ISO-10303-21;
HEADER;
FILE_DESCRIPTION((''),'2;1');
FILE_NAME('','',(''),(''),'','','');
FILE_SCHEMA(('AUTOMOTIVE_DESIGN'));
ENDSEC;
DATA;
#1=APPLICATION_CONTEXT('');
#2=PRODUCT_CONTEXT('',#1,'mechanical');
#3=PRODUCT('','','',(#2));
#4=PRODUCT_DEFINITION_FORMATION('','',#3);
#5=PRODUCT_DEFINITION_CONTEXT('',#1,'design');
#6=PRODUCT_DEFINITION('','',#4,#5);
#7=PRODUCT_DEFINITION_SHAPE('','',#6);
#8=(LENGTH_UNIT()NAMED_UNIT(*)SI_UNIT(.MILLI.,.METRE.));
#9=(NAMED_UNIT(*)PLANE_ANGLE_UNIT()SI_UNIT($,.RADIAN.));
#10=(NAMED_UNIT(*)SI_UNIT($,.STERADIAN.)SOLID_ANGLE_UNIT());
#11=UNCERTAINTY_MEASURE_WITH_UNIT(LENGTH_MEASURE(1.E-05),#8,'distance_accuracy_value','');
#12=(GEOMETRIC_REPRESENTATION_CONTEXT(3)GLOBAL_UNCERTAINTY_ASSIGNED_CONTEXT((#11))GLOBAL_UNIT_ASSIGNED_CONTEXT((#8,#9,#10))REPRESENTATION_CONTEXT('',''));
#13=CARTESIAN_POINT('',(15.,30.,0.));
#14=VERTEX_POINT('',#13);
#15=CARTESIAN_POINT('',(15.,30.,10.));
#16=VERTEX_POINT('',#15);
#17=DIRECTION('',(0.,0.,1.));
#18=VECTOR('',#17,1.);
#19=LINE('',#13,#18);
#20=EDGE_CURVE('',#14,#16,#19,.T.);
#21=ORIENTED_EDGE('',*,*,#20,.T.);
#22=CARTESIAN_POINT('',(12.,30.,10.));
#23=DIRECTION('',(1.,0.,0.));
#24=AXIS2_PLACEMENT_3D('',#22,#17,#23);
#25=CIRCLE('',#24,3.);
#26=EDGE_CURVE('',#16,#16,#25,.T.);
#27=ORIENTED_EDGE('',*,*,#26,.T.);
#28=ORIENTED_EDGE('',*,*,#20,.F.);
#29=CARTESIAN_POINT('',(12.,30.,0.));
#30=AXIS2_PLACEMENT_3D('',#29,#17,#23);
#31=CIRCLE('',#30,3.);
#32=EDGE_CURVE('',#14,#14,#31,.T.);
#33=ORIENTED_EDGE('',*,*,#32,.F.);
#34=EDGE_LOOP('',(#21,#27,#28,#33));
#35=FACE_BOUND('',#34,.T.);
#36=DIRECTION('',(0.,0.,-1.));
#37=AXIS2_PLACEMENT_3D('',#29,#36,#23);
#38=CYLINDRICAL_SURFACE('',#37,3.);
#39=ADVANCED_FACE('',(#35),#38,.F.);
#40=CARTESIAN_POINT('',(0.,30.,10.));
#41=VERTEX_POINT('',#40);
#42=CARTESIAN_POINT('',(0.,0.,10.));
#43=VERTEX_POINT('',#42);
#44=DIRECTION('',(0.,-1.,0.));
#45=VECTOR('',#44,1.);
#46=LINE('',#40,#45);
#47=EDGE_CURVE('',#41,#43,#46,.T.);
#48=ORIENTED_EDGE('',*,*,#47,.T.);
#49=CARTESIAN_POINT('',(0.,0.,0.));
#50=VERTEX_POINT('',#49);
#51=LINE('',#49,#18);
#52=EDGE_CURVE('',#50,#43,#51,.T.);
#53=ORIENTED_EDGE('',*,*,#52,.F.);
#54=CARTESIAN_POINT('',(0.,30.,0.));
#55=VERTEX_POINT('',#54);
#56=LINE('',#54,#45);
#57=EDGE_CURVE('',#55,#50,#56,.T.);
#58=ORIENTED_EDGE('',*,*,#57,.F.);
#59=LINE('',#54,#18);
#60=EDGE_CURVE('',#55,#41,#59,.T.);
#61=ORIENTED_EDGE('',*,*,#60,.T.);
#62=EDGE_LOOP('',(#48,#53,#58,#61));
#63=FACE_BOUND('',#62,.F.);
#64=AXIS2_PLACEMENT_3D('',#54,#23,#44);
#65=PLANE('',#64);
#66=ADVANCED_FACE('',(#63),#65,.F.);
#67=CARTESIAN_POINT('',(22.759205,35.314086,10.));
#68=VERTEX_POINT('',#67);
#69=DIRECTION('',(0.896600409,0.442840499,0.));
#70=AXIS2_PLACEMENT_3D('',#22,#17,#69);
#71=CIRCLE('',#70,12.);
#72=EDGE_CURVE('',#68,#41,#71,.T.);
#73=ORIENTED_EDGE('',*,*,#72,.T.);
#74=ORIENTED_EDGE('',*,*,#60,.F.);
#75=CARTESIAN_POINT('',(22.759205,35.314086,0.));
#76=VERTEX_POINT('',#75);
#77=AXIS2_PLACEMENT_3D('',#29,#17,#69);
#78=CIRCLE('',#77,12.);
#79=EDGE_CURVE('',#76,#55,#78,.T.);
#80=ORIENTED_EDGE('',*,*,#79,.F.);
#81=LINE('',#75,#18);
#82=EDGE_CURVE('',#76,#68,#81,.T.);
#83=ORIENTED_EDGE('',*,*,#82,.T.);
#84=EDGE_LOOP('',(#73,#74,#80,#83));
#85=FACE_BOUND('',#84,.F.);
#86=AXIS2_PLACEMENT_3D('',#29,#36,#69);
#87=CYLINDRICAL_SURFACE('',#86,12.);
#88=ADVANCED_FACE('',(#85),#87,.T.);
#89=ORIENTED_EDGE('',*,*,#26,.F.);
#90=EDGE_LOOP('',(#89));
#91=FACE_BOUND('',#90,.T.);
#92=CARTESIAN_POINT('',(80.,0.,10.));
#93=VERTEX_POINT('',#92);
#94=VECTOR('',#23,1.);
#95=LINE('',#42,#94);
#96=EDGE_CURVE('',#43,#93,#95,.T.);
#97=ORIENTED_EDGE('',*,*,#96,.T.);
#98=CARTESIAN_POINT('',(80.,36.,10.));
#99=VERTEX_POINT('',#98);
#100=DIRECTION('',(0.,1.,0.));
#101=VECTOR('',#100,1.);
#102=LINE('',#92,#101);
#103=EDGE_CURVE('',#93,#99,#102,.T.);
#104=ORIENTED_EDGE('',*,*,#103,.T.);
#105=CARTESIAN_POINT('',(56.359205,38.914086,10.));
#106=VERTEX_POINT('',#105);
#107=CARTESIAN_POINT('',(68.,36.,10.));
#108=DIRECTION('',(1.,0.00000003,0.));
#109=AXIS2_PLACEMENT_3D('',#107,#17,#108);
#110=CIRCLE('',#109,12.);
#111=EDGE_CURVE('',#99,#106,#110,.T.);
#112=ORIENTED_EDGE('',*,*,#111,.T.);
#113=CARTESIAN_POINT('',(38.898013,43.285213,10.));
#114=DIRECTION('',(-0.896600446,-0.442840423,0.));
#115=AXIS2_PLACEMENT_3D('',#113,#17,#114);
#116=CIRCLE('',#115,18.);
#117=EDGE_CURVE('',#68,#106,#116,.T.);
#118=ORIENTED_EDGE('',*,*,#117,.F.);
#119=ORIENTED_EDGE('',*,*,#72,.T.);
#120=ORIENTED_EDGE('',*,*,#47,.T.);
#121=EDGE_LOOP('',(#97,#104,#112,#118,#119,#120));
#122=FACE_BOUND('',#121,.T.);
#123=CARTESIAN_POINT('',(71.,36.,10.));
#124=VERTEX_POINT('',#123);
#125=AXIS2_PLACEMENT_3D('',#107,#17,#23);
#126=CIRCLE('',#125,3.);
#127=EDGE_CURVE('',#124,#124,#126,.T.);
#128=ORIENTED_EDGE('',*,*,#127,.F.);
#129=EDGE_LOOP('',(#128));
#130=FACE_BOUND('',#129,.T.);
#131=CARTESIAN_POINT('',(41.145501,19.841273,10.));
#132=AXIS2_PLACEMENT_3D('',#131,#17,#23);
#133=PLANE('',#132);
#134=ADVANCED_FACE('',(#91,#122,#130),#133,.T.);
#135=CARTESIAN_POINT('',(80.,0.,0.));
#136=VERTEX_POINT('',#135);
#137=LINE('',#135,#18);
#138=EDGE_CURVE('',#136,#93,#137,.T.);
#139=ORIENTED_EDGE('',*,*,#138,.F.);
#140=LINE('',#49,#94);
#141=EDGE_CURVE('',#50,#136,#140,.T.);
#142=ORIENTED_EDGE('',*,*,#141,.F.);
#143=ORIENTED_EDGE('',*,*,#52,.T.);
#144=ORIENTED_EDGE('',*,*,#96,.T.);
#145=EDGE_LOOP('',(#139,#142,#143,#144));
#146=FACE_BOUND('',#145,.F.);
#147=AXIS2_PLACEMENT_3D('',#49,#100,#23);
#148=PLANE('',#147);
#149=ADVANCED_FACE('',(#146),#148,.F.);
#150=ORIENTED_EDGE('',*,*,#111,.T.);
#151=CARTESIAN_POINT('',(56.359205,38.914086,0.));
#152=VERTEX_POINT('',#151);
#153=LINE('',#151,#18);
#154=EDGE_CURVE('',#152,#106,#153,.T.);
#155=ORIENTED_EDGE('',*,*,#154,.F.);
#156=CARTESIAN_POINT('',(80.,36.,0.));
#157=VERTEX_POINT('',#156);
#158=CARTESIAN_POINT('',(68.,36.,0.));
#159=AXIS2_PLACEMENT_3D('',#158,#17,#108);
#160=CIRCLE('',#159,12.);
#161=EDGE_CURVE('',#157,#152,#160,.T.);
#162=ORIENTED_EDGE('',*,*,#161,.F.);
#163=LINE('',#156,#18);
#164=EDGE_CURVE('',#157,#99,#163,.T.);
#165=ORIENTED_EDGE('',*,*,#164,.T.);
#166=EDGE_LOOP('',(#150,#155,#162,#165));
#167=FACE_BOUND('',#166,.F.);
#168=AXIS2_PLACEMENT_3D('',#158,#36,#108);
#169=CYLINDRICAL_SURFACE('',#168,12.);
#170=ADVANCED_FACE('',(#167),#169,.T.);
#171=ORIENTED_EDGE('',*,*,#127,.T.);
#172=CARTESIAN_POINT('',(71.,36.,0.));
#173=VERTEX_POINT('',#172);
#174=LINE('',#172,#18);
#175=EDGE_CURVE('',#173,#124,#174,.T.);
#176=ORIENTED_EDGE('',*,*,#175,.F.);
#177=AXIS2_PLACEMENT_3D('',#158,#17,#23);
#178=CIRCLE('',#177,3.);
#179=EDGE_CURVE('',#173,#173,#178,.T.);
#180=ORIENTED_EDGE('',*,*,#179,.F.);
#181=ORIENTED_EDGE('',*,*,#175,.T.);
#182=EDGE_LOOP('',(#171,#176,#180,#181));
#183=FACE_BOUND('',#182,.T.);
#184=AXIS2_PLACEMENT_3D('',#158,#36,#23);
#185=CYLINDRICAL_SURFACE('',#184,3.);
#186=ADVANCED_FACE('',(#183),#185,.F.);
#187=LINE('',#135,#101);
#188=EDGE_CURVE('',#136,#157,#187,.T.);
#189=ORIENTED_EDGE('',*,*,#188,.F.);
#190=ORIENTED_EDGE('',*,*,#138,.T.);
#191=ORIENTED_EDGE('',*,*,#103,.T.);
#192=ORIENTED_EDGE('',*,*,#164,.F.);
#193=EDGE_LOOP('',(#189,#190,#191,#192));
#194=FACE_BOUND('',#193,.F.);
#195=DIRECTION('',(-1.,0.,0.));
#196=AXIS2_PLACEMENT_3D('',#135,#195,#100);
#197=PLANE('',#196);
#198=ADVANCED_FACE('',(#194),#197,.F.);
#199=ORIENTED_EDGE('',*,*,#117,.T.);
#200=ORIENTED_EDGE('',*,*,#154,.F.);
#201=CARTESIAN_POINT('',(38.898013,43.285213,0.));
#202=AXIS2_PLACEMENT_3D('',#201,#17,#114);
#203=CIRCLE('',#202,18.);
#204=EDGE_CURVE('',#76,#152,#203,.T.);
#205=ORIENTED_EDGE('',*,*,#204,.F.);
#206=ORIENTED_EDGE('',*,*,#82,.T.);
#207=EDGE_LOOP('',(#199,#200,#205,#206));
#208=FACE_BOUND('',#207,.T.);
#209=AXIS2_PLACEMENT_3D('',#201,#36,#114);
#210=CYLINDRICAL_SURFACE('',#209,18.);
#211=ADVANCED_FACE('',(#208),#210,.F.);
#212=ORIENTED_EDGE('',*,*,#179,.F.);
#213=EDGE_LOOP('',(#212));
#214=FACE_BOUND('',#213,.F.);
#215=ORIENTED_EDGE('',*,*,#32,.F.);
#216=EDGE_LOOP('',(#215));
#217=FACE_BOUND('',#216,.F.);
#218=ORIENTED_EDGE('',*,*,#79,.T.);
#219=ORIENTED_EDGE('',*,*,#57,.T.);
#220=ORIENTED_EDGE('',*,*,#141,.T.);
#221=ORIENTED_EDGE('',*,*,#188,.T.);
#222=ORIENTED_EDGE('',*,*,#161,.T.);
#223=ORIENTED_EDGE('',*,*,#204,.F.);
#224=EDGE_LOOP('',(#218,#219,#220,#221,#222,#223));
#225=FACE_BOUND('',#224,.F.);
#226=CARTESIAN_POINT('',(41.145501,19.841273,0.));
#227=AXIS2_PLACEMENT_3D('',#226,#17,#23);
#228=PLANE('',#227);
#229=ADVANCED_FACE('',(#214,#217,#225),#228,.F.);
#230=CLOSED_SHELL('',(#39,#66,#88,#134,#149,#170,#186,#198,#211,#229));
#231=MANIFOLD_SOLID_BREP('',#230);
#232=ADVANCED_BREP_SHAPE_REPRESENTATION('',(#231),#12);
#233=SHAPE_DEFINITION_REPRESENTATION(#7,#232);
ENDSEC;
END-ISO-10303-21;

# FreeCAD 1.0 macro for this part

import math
import FreeCAD as App
import Part
import Sketcher

doc = App.newDocument("Part")
body = doc.addObject("PartDesign::Body", "Body")

# Sketch on XY plane
sketch1 = body.newObject("Sketcher::SketchObject", "Sketch")
sketch1.AttachmentSupport = (doc.getObject("XY_Plane"), [""])
sketch1.MapMode = "FlatFace"
sketch1.addGeometry(Part.LineSegment(App.Vector(0, 0, 0), App.Vector(80, 0, 0)), False)
sketch1.addGeometry(Part.LineSegment(App.Vector(80, 0, 0), App.Vector(80, 36, 0)), False)
sketch1.addGeometry(Part.ArcOfCircle(Part.Circle(App.Vector(68, 36, 0), App.Vector(0, 0, 1), 12), math.radians(0), math.radians(166)), False)
sketch1.addGeometry(Part.ArcOfCircle(Part.Circle(App.Vector(38.9, 43.3, 0), App.Vector(0, 0, 1), 18), math.radians(-154), math.radians(-14)), False)
sketch1.addGeometry(Part.ArcOfCircle(Part.Circle(App.Vector(12, 30, 0), App.Vector(0, 0, 1), 12), math.radians(26), math.radians(180)), False)
sketch1.addGeometry(Part.LineSegment(App.Vector(0, 30, 0), App.Vector(0, 0, 0)), False)
sketch1.addGeometry(Part.Circle(App.Vector(12, 30, 0), App.Vector(0, 0, 1), 3), False)
sketch1.addGeometry(Part.Circle(App.Vector(68, 36, 0), App.Vector(0, 0, 1), 3), False)
sketch1.addConstraint(Sketcher.Constraint("Coincident", 0, 2, 1, 1))
sketch1.addConstraint(Sketcher.Constraint("Tangent", 1, 2, 2, 1))
sketch1.addConstraint(Sketcher.Constraint("Tangent", 2, 2, 3, 2))
sketch1.addConstraint(Sketcher.Constraint("Tangent", 3, 1, 4, 1))
sketch1.addConstraint(Sketcher.Constraint("Tangent", 4, 2, 5, 1))
sketch1.addConstraint(Sketcher.Constraint("Coincident", 5, 2, 0, 1))
sketch1.addConstraint(Sketcher.Constraint("Horizontal", 0))
sketch1.addConstraint(Sketcher.Constraint("Vertical", 1))
sketch1.addConstraint(Sketcher.Constraint("Vertical", 5))
sketch1.addConstraint(Sketcher.Constraint("Coincident", 5, 2, -1, 1))
sketch1.addConstraint(Sketcher.Constraint("Coincident", 6, 3, 4, 3))
sketch1.addConstraint(Sketcher.Constraint("Coincident", 7, 3, 2, 3))
sketch1.addConstraint(Sketcher.Constraint("Equal", 2, 4))
sketch1.addConstraint(Sketcher.Constraint("Equal", 6, 7))
sketch1.addConstraint(Sketcher.Constraint("Diameter", 6, 6.0))
sketch1.addConstraint(Sketcher.Constraint("Radius", 2, 12.0))
sketch1.addConstraint(Sketcher.Constraint("Radius", 3, 18.0))
sketch1.addConstraint(Sketcher.Constraint("DistanceX", 0, 1, 0, 2, 80.0))
sketch1.addConstraint(Sketcher.Constraint("DistanceY", 1, 1, 1, 2, 36.0))
sketch1.addConstraint(Sketcher.Constraint("DistanceY", 5, 2, 5, 1, 30.0))
pad1 = body.newObject("PartDesign::Pad", "Pad")
pad1.Profile = sketch1
pad1.Length = 10

doc.recompute()
